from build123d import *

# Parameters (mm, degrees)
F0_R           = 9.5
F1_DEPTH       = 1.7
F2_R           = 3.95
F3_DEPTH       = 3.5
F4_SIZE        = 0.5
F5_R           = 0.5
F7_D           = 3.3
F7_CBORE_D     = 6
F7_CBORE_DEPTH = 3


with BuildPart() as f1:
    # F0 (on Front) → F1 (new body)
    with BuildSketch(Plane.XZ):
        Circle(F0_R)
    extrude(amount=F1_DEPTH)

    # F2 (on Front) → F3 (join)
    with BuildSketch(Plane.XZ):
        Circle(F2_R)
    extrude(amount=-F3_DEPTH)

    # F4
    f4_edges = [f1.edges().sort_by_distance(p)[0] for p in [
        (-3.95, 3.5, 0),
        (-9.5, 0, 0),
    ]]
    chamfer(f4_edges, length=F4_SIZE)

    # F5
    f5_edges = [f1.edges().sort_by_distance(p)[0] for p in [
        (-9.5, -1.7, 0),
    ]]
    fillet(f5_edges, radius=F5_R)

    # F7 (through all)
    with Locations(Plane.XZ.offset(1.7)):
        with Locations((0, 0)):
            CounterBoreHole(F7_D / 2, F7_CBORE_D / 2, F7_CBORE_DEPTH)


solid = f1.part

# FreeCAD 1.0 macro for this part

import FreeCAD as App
import Part
import Sketcher
from FreeCAD import Vector
Q = App.Units.Quantity


def edges_at(feature, points):
    """Names of the edges that pass closest to the given points."""
    edges = feature.Shape.Edges
    near = lambda p: min(range(len(edges)), key=lambda i: edges[i].distToShape(Part.Vertex(*p))[0])
    return sorted({f"Edge{near(p) + 1}" for p in points})

doc = App.newDocument("Part")
body = doc.addObject("PartDesign::Body", "Body")

# Sketch on XZ plane
sketch1 = doc.addObject("Sketcher::SketchObject", "Sketch")
body.addObject(sketch1)
sketch1.AttachmentSupport = (doc.XZ_Plane, [""])
sketch1.MapMode = "FlatFace"
sketch1.addGeometry(Part.Circle(Vector(0, 0, 0), Vector(0, 0, 1), 10), False)
sketch1.addConstraint([
    Sketcher.Constraint("Coincident", 0, 3, -1, 1),
    Sketcher.Constraint("Diameter", 0, Q("19 mm")),
])
pad1 = doc.addObject("PartDesign::Pad", "Pad")
body.addObject(pad1)
pad1.Profile = sketch1
pad1.Length = 1.7

# Sketch on XZ plane
sketch2 = doc.addObject("Sketcher::SketchObject", "Sketch001")
body.addObject(sketch2)
sketch2.AttachmentSupport = (doc.XZ_Plane, [""])
sketch2.MapMode = "FlatFace"
sketch2.addGeometry(Part.Circle(Vector(0, 0, 0), Vector(0, 0, 1), 4), False)
sketch2.addConstraint([
    Sketcher.Constraint("Coincident", 0, 3, -1, 1),
    Sketcher.Constraint("Diameter", 0, Q("7.9 mm")),
])
pad2 = doc.addObject("PartDesign::Pad", "Pad001")
body.addObject(pad2)
pad2.Profile = sketch2
pad2.Length = 3.5
pad2.Reversed = True
doc.recompute()

chamfer = doc.addObject("PartDesign::Chamfer", "Chamfer")
body.addObject(chamfer)
chamfer.Base = (pad2, edges_at(pad2, [(-3.95, 3.5, 0), (-9.5, 0, 0)]))
chamfer.Size = 0.5
doc.recompute()

fillet = doc.addObject("PartDesign::Fillet", "Fillet")
body.addObject(fillet)
fillet.Base = (chamfer, edges_at(chamfer, [(-9.5, -1.7, 0)]))
fillet.Radius = 0.5

# Sketch on XZ plane
sketch3 = doc.addObject("Sketcher::SketchObject", "Sketch002")
body.addObject(sketch3)
sketch3.AttachmentSupport = (doc.XZ_Plane, [""])
sketch3.MapMode = "FlatFace"
sketch3.AttachmentOffset = App.Placement(Vector(0, 0, 1.7), App.Rotation())
sketch3.addGeometry(Part.Circle(Vector(0, 0, 0), Vector(0, 0, 1), 1.6), False)
sketch3.addConstraint([
    Sketcher.Constraint("Coincident", 0, 3, -1, 1),
    Sketcher.Constraint("Diameter", 0, Q("3.3 mm")),
])
doc.recompute()
hole = doc.addObject("PartDesign::Hole", "Hole")
body.addObject(hole)
hole.Profile = sketch3
hole.ThreadType = "None"
hole.Diameter = 3.3
hole.DepthType = "ThroughAll"
hole.HoleCutType = "Counterbore"
hole.HoleCutDiameter = 6
hole.HoleCutDepth = 3

doc.recompute()
